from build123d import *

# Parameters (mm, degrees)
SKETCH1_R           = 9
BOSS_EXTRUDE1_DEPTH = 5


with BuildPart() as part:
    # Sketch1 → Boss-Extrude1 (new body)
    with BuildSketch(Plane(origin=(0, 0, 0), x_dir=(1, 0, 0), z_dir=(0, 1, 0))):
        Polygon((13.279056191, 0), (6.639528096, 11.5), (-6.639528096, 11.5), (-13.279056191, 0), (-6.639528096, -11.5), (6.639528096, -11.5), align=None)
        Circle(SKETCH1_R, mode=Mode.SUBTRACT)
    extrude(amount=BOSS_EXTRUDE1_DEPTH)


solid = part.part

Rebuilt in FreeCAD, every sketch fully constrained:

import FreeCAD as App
import Part
import Sketcher
from FreeCAD import Vector
Q = App.Units.Quantity

doc = App.newDocument("Part")
body = doc.addObject("PartDesign::Body", "Body")

sketch1 = body.newObject("Sketcher::SketchObject", "Sketch")
sketch1.AttachmentSupport = (doc.getObject("XZ_Plane"), [""])
sketch1.MapMode = "FlatFace"
sketch1.addGeometry(Part.LineSegment(Vector(13, 0, 0), Vector(7, -12, 0)), False)
sketch1.addGeometry(Part.LineSegment(Vector(7, -12, 0), Vector(-7, -12, 0)), False)
sketch1.addGeometry(Part.LineSegment(Vector(-7, -12, 0), Vector(-13, 0, 0)), False)
sketch1.addGeometry(Part.LineSegment(Vector(-13, 0, 0), Vector(-7, 12, 0)), False)
sketch1.addGeometry(Part.LineSegment(Vector(-7, 12, 0), Vector(7, 12, 0)), False)
sketch1.addGeometry(Part.LineSegment(Vector(7, 12, 0), Vector(13, 0, 0)), False)
sketch1.addGeometry(Part.Circle(Vector(0, 0, 0), Vector(0, 0, 1), 9), False)
sketch1.addConstraint(Sketcher.Constraint("Coincident", 0, 2, 1, 1))
sketch1.addConstraint(Sketcher.Constraint("Coincident", 1, 2, 2, 1))
sketch1.addConstraint(Sketcher.Constraint("Coincident", 2, 2, 3, 1))
sketch1.addConstraint(Sketcher.Constraint("Coincident", 3, 2, 4, 1))
sketch1.addConstraint(Sketcher.Constraint("Coincident", 4, 2, 5, 1))
sketch1.addConstraint(Sketcher.Constraint("Coincident", 5, 2, 0, 1))
sketch1.addConstraint(Sketcher.Constraint("Horizontal", 1))
sketch1.addConstraint(Sketcher.Constraint("Horizontal", 4))
sketch1.addConstraint(Sketcher.Constraint("Coincident", 6, 3, -1, 1))
sketch1.addConstraint(Sketcher.Constraint("Symmetric", 0, 2, 3, 2, -1, 1))
sketch1.addConstraint(Sketcher.Constraint("Symmetric", 2, 2, 5, 2, -1, 1))
sketch1.addConstraint(Sketcher.Constraint("PointOnObject", 2, 2, -1))
sketch1.addConstraint(Sketcher.Constraint("Parallel", 2, 5))
sketch1.addConstraint(Sketcher.Constraint("Vertical", 1, 2, 3, 2))
sketch1.addConstraint(Sketcher.Constraint("Diameter", 6, 18.0))
sketch1.addConstraint(Sketcher.Constraint("Angle", 0, Q("-120 deg")))
sketch1.addConstraint(Sketcher.Constraint("DistanceY", 1, 2, 3, 2, 23.0))
sketch1.addConstraint(Sketcher.Constraint("DistanceX", 1, 2, 1, 1, 13.279056))
pad1 = body.newObject("PartDesign::Pad", "Pad")
pad1.Profile = sketch1
pad1.Length = 5
pad1.Reversed = True

doc.recompute()
